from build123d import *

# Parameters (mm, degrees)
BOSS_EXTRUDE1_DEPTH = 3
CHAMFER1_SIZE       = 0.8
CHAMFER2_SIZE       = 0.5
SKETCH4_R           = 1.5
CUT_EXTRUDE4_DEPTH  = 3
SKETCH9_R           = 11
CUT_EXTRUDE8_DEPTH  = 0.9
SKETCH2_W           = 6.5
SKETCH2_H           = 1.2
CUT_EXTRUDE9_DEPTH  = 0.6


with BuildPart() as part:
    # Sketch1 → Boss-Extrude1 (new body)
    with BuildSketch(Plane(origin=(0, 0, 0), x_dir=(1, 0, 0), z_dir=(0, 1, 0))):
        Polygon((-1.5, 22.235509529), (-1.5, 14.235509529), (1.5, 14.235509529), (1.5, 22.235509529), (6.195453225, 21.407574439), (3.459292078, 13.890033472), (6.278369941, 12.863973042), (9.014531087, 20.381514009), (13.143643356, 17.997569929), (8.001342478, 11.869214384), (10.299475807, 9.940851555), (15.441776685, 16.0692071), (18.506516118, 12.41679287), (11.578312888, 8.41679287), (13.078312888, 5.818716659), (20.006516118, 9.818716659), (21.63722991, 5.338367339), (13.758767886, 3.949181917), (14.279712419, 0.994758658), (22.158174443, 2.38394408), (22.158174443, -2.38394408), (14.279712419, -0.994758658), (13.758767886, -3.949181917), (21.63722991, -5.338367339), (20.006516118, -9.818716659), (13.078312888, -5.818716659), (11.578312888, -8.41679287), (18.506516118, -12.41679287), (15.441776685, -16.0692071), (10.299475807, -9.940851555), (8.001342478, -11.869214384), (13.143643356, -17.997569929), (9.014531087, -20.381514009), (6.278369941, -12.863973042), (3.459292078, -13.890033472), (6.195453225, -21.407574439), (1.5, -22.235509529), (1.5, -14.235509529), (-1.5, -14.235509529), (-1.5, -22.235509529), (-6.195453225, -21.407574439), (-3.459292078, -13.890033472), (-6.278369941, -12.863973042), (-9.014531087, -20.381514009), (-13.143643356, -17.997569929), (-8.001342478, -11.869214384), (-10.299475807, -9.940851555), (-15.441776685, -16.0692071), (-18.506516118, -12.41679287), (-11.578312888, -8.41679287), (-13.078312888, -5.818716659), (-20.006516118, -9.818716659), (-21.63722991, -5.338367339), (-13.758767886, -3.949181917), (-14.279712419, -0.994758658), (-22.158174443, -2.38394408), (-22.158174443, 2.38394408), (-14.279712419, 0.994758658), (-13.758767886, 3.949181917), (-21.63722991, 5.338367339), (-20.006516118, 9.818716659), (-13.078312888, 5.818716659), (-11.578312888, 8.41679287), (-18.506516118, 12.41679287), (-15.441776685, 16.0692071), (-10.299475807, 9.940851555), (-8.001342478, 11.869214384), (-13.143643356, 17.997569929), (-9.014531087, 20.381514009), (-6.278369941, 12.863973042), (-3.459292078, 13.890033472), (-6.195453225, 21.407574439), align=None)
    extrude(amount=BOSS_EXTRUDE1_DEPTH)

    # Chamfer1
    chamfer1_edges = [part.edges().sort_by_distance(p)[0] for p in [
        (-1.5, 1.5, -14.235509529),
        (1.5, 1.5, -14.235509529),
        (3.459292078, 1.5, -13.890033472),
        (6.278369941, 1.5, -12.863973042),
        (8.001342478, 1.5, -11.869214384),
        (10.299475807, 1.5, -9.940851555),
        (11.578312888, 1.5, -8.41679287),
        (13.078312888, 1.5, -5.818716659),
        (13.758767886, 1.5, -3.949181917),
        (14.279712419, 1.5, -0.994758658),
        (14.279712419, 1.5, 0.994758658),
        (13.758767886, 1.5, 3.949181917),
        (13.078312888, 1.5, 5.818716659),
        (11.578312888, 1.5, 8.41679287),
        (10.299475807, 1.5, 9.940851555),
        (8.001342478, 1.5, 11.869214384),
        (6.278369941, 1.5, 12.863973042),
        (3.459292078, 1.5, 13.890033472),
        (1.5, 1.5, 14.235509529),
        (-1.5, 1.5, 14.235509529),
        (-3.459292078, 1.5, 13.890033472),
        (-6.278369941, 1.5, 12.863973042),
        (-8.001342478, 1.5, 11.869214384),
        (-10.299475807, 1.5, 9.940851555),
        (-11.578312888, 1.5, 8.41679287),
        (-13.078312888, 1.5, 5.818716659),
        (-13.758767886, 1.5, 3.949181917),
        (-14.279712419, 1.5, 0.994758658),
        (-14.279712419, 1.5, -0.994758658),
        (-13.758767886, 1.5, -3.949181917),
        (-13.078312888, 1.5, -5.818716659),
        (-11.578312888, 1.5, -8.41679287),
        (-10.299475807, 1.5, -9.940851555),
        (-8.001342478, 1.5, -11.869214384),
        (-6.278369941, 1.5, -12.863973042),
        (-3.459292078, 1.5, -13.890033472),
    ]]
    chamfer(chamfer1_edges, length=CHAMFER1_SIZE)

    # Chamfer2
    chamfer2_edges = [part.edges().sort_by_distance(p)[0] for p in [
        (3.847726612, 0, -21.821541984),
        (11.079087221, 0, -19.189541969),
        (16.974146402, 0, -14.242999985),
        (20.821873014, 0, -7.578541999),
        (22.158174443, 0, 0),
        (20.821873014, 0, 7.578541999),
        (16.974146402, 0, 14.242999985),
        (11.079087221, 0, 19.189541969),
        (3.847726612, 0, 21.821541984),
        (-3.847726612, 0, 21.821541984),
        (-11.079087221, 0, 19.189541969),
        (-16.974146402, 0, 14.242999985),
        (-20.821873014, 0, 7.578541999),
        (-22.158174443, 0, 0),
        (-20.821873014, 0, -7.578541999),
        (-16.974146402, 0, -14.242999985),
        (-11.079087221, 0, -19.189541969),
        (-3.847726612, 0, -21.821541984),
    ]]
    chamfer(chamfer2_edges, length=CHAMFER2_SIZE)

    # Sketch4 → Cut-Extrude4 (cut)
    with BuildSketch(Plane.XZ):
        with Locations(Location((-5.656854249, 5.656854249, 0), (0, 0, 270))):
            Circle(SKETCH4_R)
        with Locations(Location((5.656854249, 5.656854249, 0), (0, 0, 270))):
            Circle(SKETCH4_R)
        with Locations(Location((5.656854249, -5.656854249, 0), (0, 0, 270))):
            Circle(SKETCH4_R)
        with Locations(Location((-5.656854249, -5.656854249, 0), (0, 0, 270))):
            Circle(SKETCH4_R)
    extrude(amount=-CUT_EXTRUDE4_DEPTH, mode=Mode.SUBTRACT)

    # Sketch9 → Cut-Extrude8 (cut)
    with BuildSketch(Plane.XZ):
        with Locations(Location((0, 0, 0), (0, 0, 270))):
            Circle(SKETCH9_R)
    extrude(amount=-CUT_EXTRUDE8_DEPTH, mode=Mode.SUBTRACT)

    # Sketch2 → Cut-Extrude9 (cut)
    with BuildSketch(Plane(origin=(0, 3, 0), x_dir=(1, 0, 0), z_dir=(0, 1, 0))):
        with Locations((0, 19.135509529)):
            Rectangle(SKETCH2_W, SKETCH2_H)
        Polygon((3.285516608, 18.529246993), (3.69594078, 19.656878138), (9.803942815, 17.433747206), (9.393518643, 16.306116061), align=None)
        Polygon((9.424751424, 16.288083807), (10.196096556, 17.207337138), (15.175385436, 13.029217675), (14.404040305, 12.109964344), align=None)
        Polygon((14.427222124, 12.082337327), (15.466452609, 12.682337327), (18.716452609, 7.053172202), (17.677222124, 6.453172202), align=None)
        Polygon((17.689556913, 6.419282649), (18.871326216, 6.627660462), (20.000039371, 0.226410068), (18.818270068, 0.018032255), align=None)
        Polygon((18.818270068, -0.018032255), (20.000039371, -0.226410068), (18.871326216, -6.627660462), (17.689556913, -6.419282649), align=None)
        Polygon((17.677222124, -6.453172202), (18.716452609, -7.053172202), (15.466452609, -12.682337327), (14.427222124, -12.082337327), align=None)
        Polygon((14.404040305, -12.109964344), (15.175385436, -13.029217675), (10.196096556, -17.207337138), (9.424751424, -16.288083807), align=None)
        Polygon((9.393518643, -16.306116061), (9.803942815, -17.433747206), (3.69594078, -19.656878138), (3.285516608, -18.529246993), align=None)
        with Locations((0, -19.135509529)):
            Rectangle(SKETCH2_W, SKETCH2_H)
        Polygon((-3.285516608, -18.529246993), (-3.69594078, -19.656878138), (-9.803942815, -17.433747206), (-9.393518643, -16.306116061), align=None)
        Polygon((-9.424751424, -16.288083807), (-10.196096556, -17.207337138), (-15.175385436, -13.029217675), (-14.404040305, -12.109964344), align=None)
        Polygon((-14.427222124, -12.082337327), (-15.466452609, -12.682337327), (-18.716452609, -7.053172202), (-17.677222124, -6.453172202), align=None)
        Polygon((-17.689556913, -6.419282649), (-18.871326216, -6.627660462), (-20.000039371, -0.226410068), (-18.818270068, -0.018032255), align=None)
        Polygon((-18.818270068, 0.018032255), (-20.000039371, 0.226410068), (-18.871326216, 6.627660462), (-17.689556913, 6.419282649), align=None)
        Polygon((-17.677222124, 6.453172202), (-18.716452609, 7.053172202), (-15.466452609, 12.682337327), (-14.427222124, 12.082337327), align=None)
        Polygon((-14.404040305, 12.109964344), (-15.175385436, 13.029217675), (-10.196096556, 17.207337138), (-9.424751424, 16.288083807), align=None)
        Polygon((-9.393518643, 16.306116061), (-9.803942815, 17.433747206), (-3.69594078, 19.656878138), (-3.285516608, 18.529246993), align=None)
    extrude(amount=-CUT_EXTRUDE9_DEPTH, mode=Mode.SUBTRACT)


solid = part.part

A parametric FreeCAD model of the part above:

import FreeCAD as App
import Part
import Sketcher

V = App.Vector
Q = App.Units.Quantity


def edges_at(feature, points):
    """Names of the edges that pass closest to the given points."""
    edges = feature.Shape.Edges
    near = lambda p: min(range(len(edges)), key=lambda i: edges[i].distToShape(Part.Vertex(*p))[0])
    return sorted({f"Edge{near(p) + 1}" for p in points})

doc = App.newDocument("Part")
params = doc.addObject("Spreadsheet::Sheet", "Params")
for row, (alias, value) in enumerate([
    ("sketch1_width", "3 mm"),
    ("sketch1_height", "8 mm"),
    ("sketch1_length", "8 mm"),
    ("sketch1_length2", "3 mm"),
    ("pad1_length", "3 mm"),
    ("chamfer_size", "0.8 mm"),
    ("chamfer2_size", "0.5 mm"),
    ("sketch2_diameter", "3 mm"),
    ("pocket1_length", "3 mm"),
    ("sketch3_diameter", "22 mm"),
    ("pocket2_length", "0.9 mm"),
    ("sketch4_width", "6.5 mm"),
    ("sketch4_height", "1.2 mm"),
    ("sketch4_length", "1.2 mm"),
    ("sketch4_length2", "6.5 mm"),
    ("pocket3_length", "0.6 mm"),
], start=1):
    params.set(f"A{row}", alias)
    params.set(f"B{row}", "=" + value)
    params.setAlias(f"B{row}", alias)

body = doc.addObject("PartDesign::Body", "Body")

# Sketch on XZ plane
sketch1 = doc.addObject("Sketcher::SketchObject", "Sketch")
body.addObject(sketch1)
sketch1.AttachmentSupport = (doc.XZ_Plane, [""])
sketch1.MapMode = "FlatFace"
sketch1.addGeometry([
    Part.LineSegment(V(-1.5, -14.2, 0), V(-1.5, -22.2, 0)),  # 0
    Part.LineSegment(V(-1.5, -22.2, 0), V(-6.2, -21.4, 0)),  # 1
    Part.LineSegment(V(-6.2, -21.4, 0), V(-3.5, -13.9, 0)),  # 2
    Part.LineSegment(V(-3.5, -13.9, 0), V(-6.3, -12.9, 0)),  # 3
    Part.LineSegment(V(-6.3, -12.9, 0), V(-9, -20.4, 0)),  # 4
    Part.LineSegment(V(-9, -20.4, 0), V(-13.1, -18, 0)),  # 5
    Part.LineSegment(V(-13.1, -18, 0), V(-8, -11.9, 0)),  # 6
    Part.LineSegment(V(-8, -11.9, 0), V(-10.3, -9.9, 0)),  # 7
    Part.LineSegment(V(-10.3, -9.9, 0), V(-15.4, -16.1, 0)),  # 8
    Part.LineSegment(V(-15.4, -16.1, 0), V(-18.5, -12.4, 0)),  # 9
    Part.LineSegment(V(-18.5, -12.4, 0), V(-11.6, -8.4, 0)),  # 10
    Part.LineSegment(V(-11.6, -8.4, 0), V(-13.1, -5.8, 0)),  # 11
    Part.LineSegment(V(-13.1, -5.8, 0), V(-20, -9.8, 0)),  # 12
    Part.LineSegment(V(-20, -9.8, 0), V(-21.6, -5.3, 0)),  # 13
    Part.LineSegment(V(-21.6, -5.3, 0), V(-13.8, -3.9, 0)),  # 14
    Part.LineSegment(V(-13.8, -3.9, 0), V(-14.3, -1, 0)),  # 15
    Part.LineSegment(V(-14.3, -1, 0), V(-22.2, -2.4, 0)),  # 16
    Part.LineSegment(V(-22.2, -2.4, 0), V(-22.2, 2.4, 0)),  # 17
    Part.LineSegment(V(-22.2, 2.4, 0), V(-14.3, 1, 0)),  # 18
    Part.LineSegment(V(-14.3, 1, 0), V(-13.8, 3.9, 0)),  # 19
    Part.LineSegment(V(-13.8, 3.9, 0), V(-21.6, 5.3, 0)),  # 20
    Part.LineSegment(V(-21.6, 5.3, 0), V(-20, 9.8, 0)),  # 21
    Part.LineSegment(V(-20, 9.8, 0), V(-13.1, 5.8, 0)),  # 22
    Part.LineSegment(V(-13.1, 5.8, 0), V(-11.6, 8.4, 0)),  # 23
    Part.LineSegment(V(-11.6, 8.4, 0), V(-18.5, 12.4, 0)),  # 24
    Part.LineSegment(V(-18.5, 12.4, 0), V(-15.4, 16.1, 0)),  # 25
    Part.LineSegment(V(-15.4, 16.1, 0), V(-10.3, 9.9, 0)),  # 26
    Part.LineSegment(V(-10.3, 9.9, 0), V(-8, 11.9, 0)),  # 27
    Part.LineSegment(V(-8, 11.9, 0), V(-13.1, 18, 0)),  # 28
    Part.LineSegment(V(-13.1, 18, 0), V(-9, 20.4, 0)),  # 29
    Part.LineSegment(V(-9, 20.4, 0), V(-6.3, 12.9, 0)),  # 30
    Part.LineSegment(V(-6.3, 12.9, 0), V(-3.5, 13.9, 0)),  # 31
    Part.LineSegment(V(-3.5, 13.9, 0), V(-6.2, 21.4, 0)),  # 32
    Part.LineSegment(V(-6.2, 21.4, 0), V(-1.5, 22.2, 0)),  # 33
    Part.LineSegment(V(-1.5, 22.2, 0), V(-1.5, 14.2, 0)),  # 34
    Part.LineSegment(V(-1.5, 14.2, 0), V(1.5, 14.2, 0)),  # 35
    Part.LineSegment(V(1.5, 14.2, 0), V(1.5, 22.2, 0)),  # 36
    Part.LineSegment(V(1.5, 22.2, 0), V(6.2, 21.4, 0)),  # 37
    Part.LineSegment(V(6.2, 21.4, 0), V(3.5, 13.9, 0)),  # 38
    Part.LineSegment(V(3.5, 13.9, 0), V(6.3, 12.9, 0)),  # 39
    Part.LineSegment(V(6.3, 12.9, 0), V(9, 20.4, 0)),  # 40
    Part.LineSegment(V(9, 20.4, 0), V(13.1, 18, 0)),  # 41
    Part.LineSegment(V(13.1, 18, 0), V(8, 11.9, 0)),  # 42
    Part.LineSegment(V(8, 11.9, 0), V(10.3, 9.9, 0)),  # 43
    Part.LineSegment(V(10.3, 9.9, 0), V(15.4, 16.1, 0)),  # 44
    Part.LineSegment(V(15.4, 16.1, 0), V(18.5, 12.4, 0)),  # 45
    Part.LineSegment(V(18.5, 12.4, 0), V(11.6, 8.4, 0)),  # 46
    Part.LineSegment(V(11.6, 8.4, 0), V(13.1, 5.8, 0)),  # 47
    Part.LineSegment(V(13.1, 5.8, 0), V(20, 9.8, 0)),  # 48
    Part.LineSegment(V(20, 9.8, 0), V(21.6, 5.3, 0)),  # 49
    Part.LineSegment(V(21.6, 5.3, 0), V(13.8, 3.9, 0)),  # 50
    Part.LineSegment(V(13.8, 3.9, 0), V(14.3, 1, 0)),  # 51
    Part.LineSegment(V(14.3, 1, 0), V(22.2, 2.4, 0)),  # 52
    Part.LineSegment(V(22.2, 2.4, 0), V(22.2, -2.4, 0)),  # 53
    Part.LineSegment(V(22.2, -2.4, 0), V(14.3, -1, 0)),  # 54
    Part.LineSegment(V(14.3, -1, 0), V(13.8, -3.9, 0)),  # 55
    Part.LineSegment(V(13.8, -3.9, 0), V(21.6, -5.3, 0)),  # 56
    Part.LineSegment(V(21.6, -5.3, 0), V(20, -9.8, 0)),  # 57
    Part.LineSegment(V(20, -9.8, 0), V(13.1, -5.8, 0)),  # 58
    Part.LineSegment(V(13.1, -5.8, 0), V(11.6, -8.4, 0)),  # 59
    Part.LineSegment(V(11.6, -8.4, 0), V(18.5, -12.4, 0)),  # 60
    Part.LineSegment(V(18.5, -12.4, 0), V(15.4, -16.1, 0)),  # 61
    Part.LineSegment(V(15.4, -16.1, 0), V(10.3, -9.9, 0)),  # 62
    Part.LineSegment(V(10.3, -9.9, 0), V(8, -11.9, 0)),  # 63
    Part.LineSegment(V(8, -11.9, 0), V(13.1, -18, 0)),  # 64
    Part.LineSegment(V(13.1, -18, 0), V(9, -20.4, 0)),  # 65
    Part.LineSegment(V(9, -20.4, 0), V(6.3, -12.9, 0)),  # 66
    Part.LineSegment(V(6.3, -12.9, 0), V(3.5, -13.9, 0)),  # 67
    Part.LineSegment(V(3.5, -13.9, 0), V(6.2, -21.4, 0)),  # 68
    Part.LineSegment(V(6.2, -21.4, 0), V(1.5, -22.2, 0)),  # 69
    Part.LineSegment(V(1.5, -22.2, 0), V(1.5, -14.2, 0)),  # 70
    Part.LineSegment(V(1.5, -14.2, 0), V(-1.5, -14.2, 0)),  # 71
], False)
sketch1.addConstraint([
    Sketcher.Constraint("Coincident", 0, 2, 1, 1),
    Sketcher.Constraint("Coincident", 1, 2, 2, 1),
    Sketcher.Constraint("Coincident", 2, 2, 3, 1),
    Sketcher.Constraint("Coincident", 3, 2, 4, 1),
    Sketcher.Constraint("Coincident", 4, 2, 5, 1),
    Sketcher.Constraint("Coincident", 5, 2, 6, 1),
    Sketcher.Constraint("Coincident", 6, 2, 7, 1),
    Sketcher.Constraint("Coincident", 7, 2, 8, 1),
    Sketcher.Constraint("Coincident", 8, 2, 9, 1),
    Sketcher.Constraint("Coincident", 9, 2, 10, 1),
    Sketcher.Constraint("Coincident", 10, 2, 11, 1),
    Sketcher.Constraint("Coincident", 11, 2, 12, 1),
    Sketcher.Constraint("Coincident", 12, 2, 13, 1),
    Sketcher.Constraint("Coincident", 13, 2, 14, 1),
    Sketcher.Constraint("Coincident", 14, 2, 15, 1),
    Sketcher.Constraint("Coincident", 15, 2, 16, 1),
    Sketcher.Constraint("Coincident", 16, 2, 17, 1),
    Sketcher.Constraint("Coincident", 17, 2, 18, 1),
    Sketcher.Constraint("Coincident", 18, 2, 19, 1),
    Sketcher.Constraint("Coincident", 19, 2, 20, 1),
    Sketcher.Constraint("Coincident", 20, 2, 21, 1),
    Sketcher.Constraint("Coincident", 21, 2, 22, 1),
    Sketcher.Constraint("Coincident", 22, 2, 23, 1),
    Sketcher.Constraint("Coincident", 23, 2, 24, 1),
    Sketcher.Constraint("Coincident", 24, 2, 25, 1),
    Sketcher.Constraint("Coincident", 25, 2, 26, 1),
    Sketcher.Constraint("Coincident", 26, 2, 27, 1),
    Sketcher.Constraint("Coincident", 27, 2, 28, 1),
    Sketcher.Constraint("Coincident", 28, 2, 29, 1),
    Sketcher.Constraint("Coincident", 29, 2, 30, 1),
    Sketcher.Constraint("Coincident", 30, 2, 31, 1),
    Sketcher.Constraint("Coincident", 31, 2, 32, 1),
    Sketcher.Constraint("Coincident", 32, 2, 33, 1),
    Sketcher.Constraint("Coincident", 33, 2, 34, 1),
    Sketcher.Constraint("Coincident", 34, 2, 35, 1),
    Sketcher.Constraint("Coincident", 35, 2, 36, 1),
    Sketcher.Constraint("Coincident", 36, 2, 37, 1),
    Sketcher.Constraint("Coincident", 37, 2, 38, 1),
    Sketcher.Constraint("Coincident", 38, 2, 39, 1),
    Sketcher.Constraint("Coincident", 39, 2, 40, 1),
    Sketcher.Constraint("Coincident", 40, 2, 41, 1),
    Sketcher.Constraint("Coincident", 41, 2, 42, 1),
    Sketcher.Constraint("Coincident", 42, 2, 43, 1),
    Sketcher.Constraint("Coincident", 43, 2, 44, 1),
    Sketcher.Constraint("Coincident", 44, 2, 45, 1),
    Sketcher.Constraint("Coincident", 45, 2, 46, 1),
    Sketcher.Constraint("Coincident", 46, 2, 47, 1),
    Sketcher.Constraint("Coincident", 47, 2, 48, 1),
    Sketcher.Constraint("Coincident", 48, 2, 49, 1),
    Sketcher.Constraint("Coincident", 49, 2, 50, 1),
    Sketcher.Constraint("Coincident", 50, 2, 51, 1),
    Sketcher.Constraint("Coincident", 51, 2, 52, 1),
    Sketcher.Constraint("Coincident", 52, 2, 53, 1),
    Sketcher.Constraint("Coincident", 53, 2, 54, 1),
    Sketcher.Constraint("Coincident", 54, 2, 55, 1),
    Sketcher.Constraint("Coincident", 55, 2, 56, 1),
    Sketcher.Constraint("Coincident", 56, 2, 57, 1),
    Sketcher.Constraint("Coincident", 57, 2, 58, 1),
    Sketcher.Constraint("Coincident", 58, 2, 59, 1),
    Sketcher.Constraint("Coincident", 59, 2, 60, 1),
    Sketcher.Constraint("Coincident", 60, 2, 61, 1),
    Sketcher.Constraint("Coincident", 61, 2, 62, 1),
    Sketcher.Constraint("Coincident", 62, 2, 63, 1),
    Sketcher.Constraint("Coincident", 63, 2, 64, 1),
    Sketcher.Constraint("Coincident", 64, 2, 65, 1),
    Sketcher.Constraint("Coincident", 65, 2, 66, 1),
    Sketcher.Constraint("Coincident", 66, 2, 67, 1),
    Sketcher.Constraint("Coincident", 67, 2, 68, 1),
    Sketcher.Constraint("Coincident", 68, 2, 69, 1),
    Sketcher.Constraint("Coincident", 69, 2, 70, 1),
    Sketcher.Constraint("Coincident", 70, 2, 71, 1),
    Sketcher.Constraint("Coincident", 71, 2, 0, 1),
    Sketcher.Constraint("Vertical", 0),
    Sketcher.Constraint("Vertical", 17),
    Sketcher.Constraint("Vertical", 34),
    Sketcher.Constraint("Horizontal", 35),
    Sketcher.Constraint("Vertical", 36),
    Sketcher.Constraint("Vertical", 53),
    Sketcher.Constraint("Vertical", 70),
    Sketcher.Constraint("Horizontal", 71),
    Sketcher.Constraint("Symmetric", 0, 2, 36, 2, -1, 1),
    Sketcher.Constraint("Symmetric", 1, 2, 37, 2, -1, 1),
    Sketcher.Constraint("Symmetric", 2, 2, 38, 2, -1, 1),
    Sketcher.Constraint("Symmetric", 3, 2, 39, 2, -1, 1),
    Sketcher.Constraint("Symmetric", 4, 2, 40, 2, -1, 1),
    Sketcher.Constraint("Symmetric", 5, 2, 41, 2, -1, 1),
    Sketcher.Constraint("Symmetric", 6, 2, 42, 2, -1, 1),
    Sketcher.Constraint("Symmetric", 7, 2, 43, 2, -1, 1),
    Sketcher.Constraint("Symmetric", 8, 2, 44, 2, -1, 1),
    Sketcher.Constraint("Symmetric", 9, 2, 45, 2, -1, 1),
    Sketcher.Constraint("Symmetric", 10, 2, 46, 2, -1, 1),
    Sketcher.Constraint("Symmetric", 11, 2, 47, 2, -1, 1),
    Sketcher.Constraint("Symmetric", 12, 2, 48, 2, -1, 1),
    Sketcher.Constraint("Symmetric", 13, 2, 49, 2, -1, 1),
    Sketcher.Constraint("Symmetric", 14, 2, 50, 2, -1, 1),
    Sketcher.Constraint("Symmetric", 15, 2, 51, 2, -1, 1),
    Sketcher.Constraint("Symmetric", 16, 2, 52, 2, -1, 1),
    Sketcher.Constraint("Symmetric", 18, 2, 54, 2, -1, 1),
    Sketcher.Constraint("Symmetric", 19, 2, 55, 2, -1, 1),
    Sketcher.Constraint("Symmetric", 20, 2, 56, 2, -1, 1),
    Sketcher.Constraint("Symmetric", 21, 2, 57, 2, -1, 1),
    Sketcher.Constraint("Symmetric", 22, 2, 58, 2, -1, 1),
    Sketcher.Constraint("Symmetric", 23, 2, 59, 2, -1, 1),
    Sketcher.Constraint("Symmetric", 24, 2, 60, 2, -1, 1),
    Sketcher.Constraint("Symmetric", 25, 2, 61, 2, -1, 1),
    Sketcher.Constraint("Symmetric", 26, 2, 62, 2, -1, 1),
    Sketcher.Constraint("Symmetric", 27, 2, 63, 2, -1, 1),
    Sketcher.Constraint("Symmetric", 28, 2, 64, 2, -1, 1),
    Sketcher.Constraint("Symmetric", 29, 2, 65, 2, -1, 1),
    Sketcher.Constraint("Symmetric", 30, 2, 66, 2, -1, 1),
    Sketcher.Constraint("Symmetric", 31, 2, 67, 2, -1, 1),
    Sketcher.Constraint("Symmetric", 32, 2, 68, 2, -1, 1),
    Sketcher.Constraint("Symmetric", 33, 2, 69, 2, -1, 1),
    Sketcher.Constraint("Symmetric", 33, 2, 36, 2, -2),
    Sketcher.Constraint("Symmetric", 32, 2, 37, 2, -2),
    Sketcher.Constraint("Symmetric", 31, 2, 38, 2, -2),
    Sketcher.Constraint("Symmetric", 30, 2, 39, 2, -2),
    Sketcher.Constraint("Symmetric", 29, 2, 40, 2, -2),
    Sketcher.Constraint("Symmetric", 28, 2, 41, 2, -2),
    Sketcher.Constraint("Symmetric", 27, 2, 42, 2, -2),
    Sketcher.Constraint("Symmetric", 26, 2, 43, 2, -2),
    Sketcher.Constraint("Symmetric", 25, 2, 44, 2, -2),
    Sketcher.Constraint("Symmetric", 24, 2, 45, 2, -2),
    Sketcher.Constraint("Symmetric", 23, 2, 46, 2, -2),
    Sketcher.Constraint("Symmetric", 22, 2, 47, 2, -2),
    Sketcher.Constraint("Symmetric", 21, 2, 48, 2, -2),
    Sketcher.Constraint("Symmetric", 20, 2, 49, 2, -2),
    Sketcher.Constraint("Symmetric", 19, 2, 50, 2, -2),
    Sketcher.Constraint("Symmetric", 18, 2, 51, 2, -2),
    Sketcher.Constraint("Perpendicular", 2, 3),
    Sketcher.Constraint("Perpendicular", 3, 4),
    Sketcher.Constraint("Perpendicular", 6, 7),
    Sketcher.Constraint("Perpendicular", 7, 8),
    Sketcher.Constraint("Perpendicular", 10, 11),
    Sketcher.Constraint("Perpendicular", 11, 12),
    Sketcher.Constraint("Perpendicular", 14, 15),
    Sketcher.Constraint("Perpendicular", 15, 16),
    Sketcher.Constraint("Parallel", 1, 18),
    Sketcher.Constraint("Perpendicular", 18, 19),
    Sketcher.Constraint("Parallel", 4, 21),
    Sketcher.Constraint("Parallel", 5, 22),
    Sketcher.Constraint("Parallel", 8, 25),
    Sketcher.Constraint("Parallel", 37, 54),
    Sketcher.Constraint("Equal", 0, 34),
    Sketcher.Constraint("Equal", 2, 4),
    Sketcher.Constraint("Equal", 1, 5),
    Sketcher.Constraint("Equal", 4, 6),
    Sketcher.Constraint("Equal", 3, 7),
    Sketcher.Constraint("Equal", 6, 8),
    Sketcher.Constraint("Equal", 5, 9),
    Sketcher.Constraint("Equal", 8, 10),
    Sketcher.Constraint("Equal", 7, 11),
    Sketcher.Constraint("Equal", 10, 12),
    Sketcher.Constraint("Equal", 9, 13),
    Sketcher.Constraint("Equal", 12, 14),
    Sketcher.Constraint("Equal", 11, 15),
    Sketcher.Constraint("Equal", 14, 16),
    Sketcher.Constraint("DistanceX", 35, 1, 35, 2, 3.0),
    Sketcher.Constraint("DistanceY", 0, 2, 0, 1, 8.0),
    Sketcher.Constraint("Angle", 1, Q("170 deg")),
    Sketcher.Constraint("Angle", 2, Q("70 deg")),
    Sketcher.Constraint("Angle", 5, Q("150 deg")),
    Sketcher.Constraint("Angle", 6, Q("50 deg")),
    Sketcher.Constraint("Distance", 2, 8.0),
    Sketcher.Constraint("Distance", 3, 3.0),
    Sketcher.Constraint("DistanceY", 17, 1, 17, 2, 4.767888),
    Sketcher.Constraint("Distance", 1, 4.767888),
])
sketch1.setExpression("Constraints[157]", "Params.sketch1_width")
sketch1.setExpression("Constraints[158]", "Params.sketch1_height")
sketch1.setExpression("Constraints[163]", "Params.sketch1_length")
sketch1.setExpression("Constraints[164]", "Params.sketch1_length2")
pad1 = doc.addObject("PartDesign::Pad", "Pad")
body.addObject(pad1)
pad1.Profile = sketch1
pad1.setExpression("Length", "Params.pad1_length")
pad1.Reversed = True
doc.recompute()

chamfer = doc.addObject("PartDesign::Chamfer", "Chamfer")
body.addObject(chamfer)
chamfer.Base = (pad1, edges_at(pad1, [
    (-1.5, 1.5, -14.236),
    (1.5, 1.5, -14.236),
    (3.459, 1.5, -13.89),
    (6.278, 1.5, -12.864),
    (8.001, 1.5, -11.869),
    (10.299, 1.5, -9.941),
    (11.578, 1.5, -8.417),
    (13.078, 1.5, -5.819),
    (13.759, 1.5, -3.949),
    (14.28, 1.5, -0.995),
    (14.28, 1.5, 0.995),
    (13.759, 1.5, 3.949),
    (13.078, 1.5, 5.819),
    (11.578, 1.5, 8.417),
    (10.299, 1.5, 9.941),
    (8.001, 1.5, 11.869),
    (6.278, 1.5, 12.864),
    (3.459, 1.5, 13.89),
    (1.5, 1.5, 14.236),
    (-1.5, 1.5, 14.236),
    (-3.459, 1.5, 13.89),
    (-6.278, 1.5, 12.864),
    (-8.001, 1.5, 11.869),
    (-10.299, 1.5, 9.941),
    (-11.578, 1.5, 8.417),
    (-13.078, 1.5, 5.819),
    (-13.759, 1.5, 3.949),
    (-14.28, 1.5, 0.995),
    (-14.28, 1.5, -0.995),
    (-13.759, 1.5, -3.949),
    (-13.078, 1.5, -5.819),
    (-11.578, 1.5, -8.417),
    (-10.299, 1.5, -9.941),
    (-8.001, 1.5, -11.869),
    (-6.278, 1.5, -12.864),
    (-3.459, 1.5, -13.89),
]))
chamfer.setExpression("Size", "Params.chamfer_size")
doc.recompute()

chamfer2 = doc.addObject("PartDesign::Chamfer", "Chamfer001")
body.addObject(chamfer2)
chamfer2.Base = (chamfer, edges_at(chamfer, [
    (3.848, 0, -21.822),
    (11.079, 0, -19.19),
    (16.974, 0, -14.243),
    (20.822, 0, -7.579),
    (22.158, 0, 0),
    (20.822, 0, 7.579),
    (16.974, 0, 14.243),
    (11.079, 0, 19.19),
    (3.848, 0, 21.822),
    (-3.848, 0, 21.822),
    (-11.079, 0, 19.19),
    (-16.974, 0, 14.243),
    (-20.822, 0, 7.579),
    (-22.158, 0, 0),
    (-20.822, 0, -7.579),
    (-16.974, 0, -14.243),
    (-11.079, 0, -19.19),
    (-3.848, 0, -21.822),
]))
chamfer2.setExpression("Size", "Params.chamfer2_size")

# Sketch on XZ plane
sketch2 = doc.addObject("Sketcher::SketchObject", "Sketch001")
body.addObject(sketch2)
sketch2.AttachmentSupport = (doc.XZ_Plane, [""])
sketch2.MapMode = "FlatFace"
sketch2.addGeometry([
    Part.Circle(V(-5.7, 5.7, 0), V(0, 0, 1), 1.5),
    Part.Circle(V(5.7, 5.7, 0), V(0, 0, 1), 1.5),
    Part.Circle(V(5.7, -5.7, 0), V(0, 0, 1), 1.5),
    Part.Circle(V(-5.7, -5.7, 0), V(0, 0, 1), 1.5),
], False)
sketch2.addConstraint([
    Sketcher.Constraint("Equal", 0, 1),
    Sketcher.Constraint("Equal", 1, 2),
    Sketcher.Constraint("Equal", 2, 3),
    Sketcher.Constraint("Symmetric", 0, 3, 2, 3, -1, 1),
    Sketcher.Constraint("Symmetric", 1, 3, 3, 3, -1, 1),
    Sketcher.Constraint("Symmetric", 0, 3, 1, 3, -2),
    Sketcher.Constraint("Diameter", 0, 3.0),
    Sketcher.Constraint("DistanceX", 0, 3, 1, 3, 11.313708),
    Sketcher.Constraint("DistanceY", 2, 3, 1, 3, 11.313708),
])
sketch2.setExpression("Constraints[6]", "Params.sketch2_diameter")
pocket1 = doc.addObject("PartDesign::Pocket", "Pocket")
body.addObject(pocket1)
pocket1.Profile = sketch2
pocket1.setExpression("Length", "Params.pocket1_length")

# Sketch on XZ plane
sketch3 = doc.addObject("Sketcher::SketchObject", "Sketch002")
body.addObject(sketch3)
sketch3.AttachmentSupport = (doc.XZ_Plane, [""])
sketch3.MapMode = "FlatFace"
sketch3.addGeometry(Part.Circle(V(0, 0, 0), V(0, 0, 1), 11), False)
sketch3.addConstraint([
    Sketcher.Constraint("Coincident", 0, 3, -1, 1),
    Sketcher.Constraint("Diameter", 0, 22.0),
])
sketch3.setExpression("Constraints[1]", "Params.sketch3_diameter")
pocket2 = doc.addObject("PartDesign::Pocket", "Pocket001")
body.addObject(pocket2)
pocket2.Profile = sketch3
pocket2.setExpression("Length", "Params.pocket2_length")

# Sketch on XZ plane
sketch4 = doc.addObject("Sketcher::SketchObject", "Sketch003")
body.addObject(sketch4)
sketch4.AttachmentSupport = (doc.XZ_Plane, [""])
sketch4.MapMode = "FlatFace"
sketch4.AttachmentOffset = App.Placement(V(0, 0, -3), App.Rotation())
sketch4.addGeometry([
    Part.LineSegment(V(-3.2, -19.7, 0), V(-3.2, -18.5, 0)),  # 0
    Part.LineSegment(V(-3.2, -18.5, 0), V(3.2, -18.5, 0)),  # 1
    Part.LineSegment(V(3.2, -18.5, 0), V(3.2, -19.7, 0)),  # 2
    Part.LineSegment(V(3.2, -19.7, 0), V(-3.2, -19.7, 0)),  # 3
    Part.LineSegment(V(3.7, -19.7, 0), V(3.3, -18.5, 0)),  # 4
    Part.LineSegment(V(3.3, -18.5, 0), V(9.4, -16.3, 0)),  # 5
    Part.LineSegment(V(9.4, -16.3, 0), V(9.8, -17.4, 0)),  # 6
    Part.LineSegment(V(9.8, -17.4, 0), V(3.7, -19.7, 0)),  # 7
    Part.LineSegment(V(10.2, -17.2, 0), V(9.4, -16.3, 0)),  # 8
    Part.LineSegment(V(9.4, -16.3, 0), V(14.4, -12.1, 0)),  # 9
    Part.LineSegment(V(14.4, -12.1, 0), V(15.2, -13, 0)),  # 10
    Part.LineSegment(V(15.2, -13, 0), V(10.2, -17.2, 0)),  # 11
    Part.LineSegment(V(15.5, -12.7, 0), V(14.4, -12.1, 0)),  # 12
    Part.LineSegment(V(14.4, -12.1, 0), V(17.7, -6.5, 0)),  # 13
    Part.LineSegment(V(17.7, -6.5, 0), V(18.7, -7.1, 0)),  # 14
    Part.LineSegment(V(18.7, -7.1, 0), V(15.5, -12.7, 0)),  # 15
    Part.LineSegment(V(18.9, -6.6, 0), V(17.7, -6.4, 0)),  # 16
    Part.LineSegment(V(17.7, -6.4, 0), V(18.8, 0, 0)),  # 17
    Part.LineSegment(V(18.8, 0, 0), V(20, -0.2, 0)),  # 18
    Part.LineSegment(V(20, -0.2, 0), V(18.9, -6.6, 0)),  # 19
    Part.LineSegment(V(20, 0.2, 0), V(18.8, 0, 0)),  # 20
    Part.LineSegment(V(18.8, 0, 0), V(17.7, 6.4, 0)),  # 21
    Part.LineSegment(V(17.7, 6.4, 0), V(18.9, 6.6, 0)),  # 22
    Part.LineSegment(V(18.9, 6.6, 0), V(20, 0.2, 0)),  # 23
    Part.LineSegment(V(18.7, 7.1, 0), V(17.7, 6.5, 0)),  # 24
    Part.LineSegment(V(17.7, 6.5, 0), V(14.4, 12.1, 0)),  # 25
    Part.LineSegment(V(14.4, 12.1, 0), V(15.5, 12.7, 0)),  # 26
    Part.LineSegment(V(15.5, 12.7, 0), V(18.7, 7.1, 0)),  # 27
    Part.LineSegment(V(15.2, 13, 0), V(14.4, 12.1, 0)),  # 28
    Part.LineSegment(V(14.4, 12.1, 0), V(9.4, 16.3, 0)),  # 29
    Part.LineSegment(V(9.4, 16.3, 0), V(10.2, 17.2, 0)),  # 30
    Part.LineSegment(V(10.2, 17.2, 0), V(15.2, 13, 0)),  # 31
    Part.LineSegment(V(9.8, 17.4, 0), V(9.4, 16.3, 0)),  # 32
    Part.LineSegment(V(9.4, 16.3, 0), V(3.3, 18.5, 0)),  # 33
    Part.LineSegment(V(3.3, 18.5, 0), V(3.7, 19.7, 0)),  # 34
    Part.LineSegment(V(3.7, 19.7, 0), V(9.8, 17.4, 0)),  # 35
    Part.LineSegment(V(-3.2, 18.5, 0), V(-3.2, 19.7, 0)),  # 36
    Part.LineSegment(V(-3.2, 19.7, 0), V(3.2, 19.7, 0)),  # 37
    Part.LineSegment(V(3.2, 19.7, 0), V(3.2, 18.5, 0)),  # 38
    Part.LineSegment(V(3.2, 18.5, 0), V(-3.2, 18.5, 0)),  # 39
    Part.LineSegment(V(-3.7, 19.7, 0), V(-3.3, 18.5, 0)),  # 40
    Part.LineSegment(V(-3.3, 18.5, 0), V(-9.4, 16.3, 0)),  # 41
    Part.LineSegment(V(-9.4, 16.3, 0), V(-9.8, 17.4, 0)),  # 42
    Part.LineSegment(V(-9.8, 17.4, 0), V(-3.7, 19.7, 0)),  # 43
    Part.LineSegment(V(-10.2, 17.2, 0), V(-9.4, 16.3, 0)),  # 44
    Part.LineSegment(V(-9.4, 16.3, 0), V(-14.4, 12.1, 0)),  # 45
    Part.LineSegment(V(-14.4, 12.1, 0), V(-15.2, 13, 0)),  # 46
    Part.LineSegment(V(-15.2, 13, 0), V(-10.2, 17.2, 0)),  # 47
    Part.LineSegment(V(-15.5, 12.7, 0), V(-14.4, 12.1, 0)),  # 48
    Part.LineSegment(V(-14.4, 12.1, 0), V(-17.7, 6.5, 0)),  # 49
    Part.LineSegment(V(-17.7, 6.5, 0), V(-18.7, 7.1, 0)),  # 50
    Part.LineSegment(V(-18.7, 7.1, 0), V(-15.5, 12.7, 0)),  # 51
    Part.LineSegment(V(-18.9, 6.6, 0), V(-17.7, 6.4, 0)),  # 52
    Part.LineSegment(V(-17.7, 6.4, 0), V(-18.8, 0, 0)),  # 53
    Part.LineSegment(V(-18.8, 0, 0), V(-20, 0.2, 0)),  # 54
    Part.LineSegment(V(-20, 0.2, 0), V(-18.9, 6.6, 0)),  # 55
    Part.LineSegment(V(-20, -0.2, 0), V(-18.8, 0, 0)),  # 56
    Part.LineSegment(V(-18.8, 0, 0), V(-17.7, -6.4, 0)),  # 57
    Part.LineSegment(V(-17.7, -6.4, 0), V(-18.9, -6.6, 0)),  # 58
    Part.LineSegment(V(-18.9, -6.6, 0), V(-20, -0.2, 0)),  # 59
    Part.LineSegment(V(-18.7, -7.1, 0), V(-17.7, -6.5, 0)),  # 60
    Part.LineSegment(V(-17.7, -6.5, 0), V(-14.4, -12.1, 0)),  # 61
    Part.LineSegment(V(-14.4, -12.1, 0), V(-15.5, -12.7, 0)),  # 62
    Part.LineSegment(V(-15.5, -12.7, 0), V(-18.7, -7.1, 0)),  # 63
    Part.LineSegment(V(-15.2, -13, 0), V(-14.4, -12.1, 0)),  # 64
    Part.LineSegment(V(-14.4, -12.1, 0), V(-9.4, -16.3, 0)),  # 65
    Part.LineSegment(V(-9.4, -16.3, 0), V(-10.2, -17.2, 0)),  # 66
    Part.LineSegment(V(-10.2, -17.2, 0), V(-15.2, -13, 0)),  # 67
    Part.LineSegment(V(-9.8, -17.4, 0), V(-9.4, -16.3, 0)),  # 68
    Part.LineSegment(V(-9.4, -16.3, 0), V(-3.3, -18.5, 0)),  # 69
    Part.LineSegment(V(-3.3, -18.5, 0), V(-3.7, -19.7, 0)),  # 70
    Part.LineSegment(V(-3.7, -19.7, 0), V(-9.8, -17.4, 0)),  # 71
], False)
sketch4.addConstraint([
    Sketcher.Constraint("Coincident", 0, 2, 1, 1),
    Sketcher.Constraint("Coincident", 1, 2, 2, 1),
    Sketcher.Constraint("Coincident", 2, 2, 3, 1),
    Sketcher.Constraint("Coincident", 3, 2, 0, 1),
    Sketcher.Constraint("Coincident", 4, 2, 5, 1),
    Sketcher.Constraint("Coincident", 5, 2, 6, 1),
    Sketcher.Constraint("Coincident", 6, 2, 7, 1),
    Sketcher.Constraint("Coincident", 7, 2, 4, 1),
    Sketcher.Constraint("Coincident", 8, 2, 9, 1),
    Sketcher.Constraint("Coincident", 9, 2, 10, 1),
    Sketcher.Constraint("Coincident", 10, 2, 11, 1),
    Sketcher.Constraint("Coincident", 11, 2, 8, 1),
    Sketcher.Constraint("Coincident", 12, 2, 13, 1),
    Sketcher.Constraint("Coincident", 13, 2, 14, 1),
    Sketcher.Constraint("Coincident", 14, 2, 15, 1),
    Sketcher.Constraint("Coincident", 15, 2, 12, 1),
    Sketcher.Constraint("Coincident", 16, 2, 17, 1),
    Sketcher.Constraint("Coincident", 17, 2, 18, 1),
    Sketcher.Constraint("Coincident", 18, 2, 19, 1),
    Sketcher.Constraint("Coincident", 19, 2, 16, 1),
    Sketcher.Constraint("Coincident", 20, 2, 21, 1),
    Sketcher.Constraint("Coincident", 21, 2, 22, 1),
    Sketcher.Constraint("Coincident", 22, 2, 23, 1),
    Sketcher.Constraint("Coincident", 23, 2, 20, 1),
    Sketcher.Constraint("Coincident", 24, 2, 25, 1),
    Sketcher.Constraint("Coincident", 25, 2, 26, 1),
    Sketcher.Constraint("Coincident", 26, 2, 27, 1),
    Sketcher.Constraint("Coincident", 27, 2, 24, 1),
    Sketcher.Constraint("Coincident", 28, 2, 29, 1),
    Sketcher.Constraint("Coincident", 29, 2, 30, 1),
    Sketcher.Constraint("Coincident", 30, 2, 31, 1),
    Sketcher.Constraint("Coincident", 31, 2, 28, 1),
    Sketcher.Constraint("Coincident", 32, 2, 33, 1),
    Sketcher.Constraint("Coincident", 33, 2, 34, 1),
    Sketcher.Constraint("Coincident", 34, 2, 35, 1),
    Sketcher.Constraint("Coincident", 35, 2, 32, 1),
    Sketcher.Constraint("Coincident", 36, 2, 37, 1),
    Sketcher.Constraint("Coincident", 37, 2, 38, 1),
    Sketcher.Constraint("Coincident", 38, 2, 39, 1),
    Sketcher.Constraint("Coincident", 39, 2, 36, 1),
    Sketcher.Constraint("Coincident", 40, 2, 41, 1),
    Sketcher.Constraint("Coincident", 41, 2, 42, 1),
    Sketcher.Constraint("Coincident", 42, 2, 43, 1),
    Sketcher.Constraint("Coincident", 43, 2, 40, 1),
    Sketcher.Constraint("Coincident", 44, 2, 45, 1),
    Sketcher.Constraint("Coincident", 45, 2, 46, 1),
    Sketcher.Constraint("Coincident", 46, 2, 47, 1),
    Sketcher.Constraint("Coincident", 47, 2, 44, 1),
    Sketcher.Constraint("Coincident", 48, 2, 49, 1),
    Sketcher.Constraint("Coincident", 49, 2, 50, 1),
    Sketcher.Constraint("Coincident", 50, 2, 51, 1),
    Sketcher.Constraint("Coincident", 51, 2, 48, 1),
    Sketcher.Constraint("Coincident", 52, 2, 53, 1),
    Sketcher.Constraint("Coincident", 53, 2, 54, 1),
    Sketcher.Constraint("Coincident", 54, 2, 55, 1),
    Sketcher.Constraint("Coincident", 55, 2, 52, 1),
    Sketcher.Constraint("Coincident", 56, 2, 57, 1),
    Sketcher.Constraint("Coincident", 57, 2, 58, 1),
    Sketcher.Constraint("Coincident", 58, 2, 59, 1),
    Sketcher.Constraint("Coincident", 59, 2, 56, 1),
    Sketcher.Constraint("Coincident", 60, 2, 61, 1),
    Sketcher.Constraint("Coincident", 61, 2, 62, 1),
    Sketcher.Constraint("Coincident", 62, 2, 63, 1),
    Sketcher.Constraint("Coincident", 63, 2, 60, 1),
    Sketcher.Constraint("Coincident", 64, 2, 65, 1),
    Sketcher.Constraint("Coincident", 65, 2, 66, 1),
    Sketcher.Constraint("Coincident", 66, 2, 67, 1),
    Sketcher.Constraint("Coincident", 67, 2, 64, 1),
    Sketcher.Constraint("Coincident", 68, 2, 69, 1),
    Sketcher.Constraint("Coincident", 69, 2, 70, 1),
    Sketcher.Constraint("Coincident", 70, 2, 71, 1),
    Sketcher.Constraint("Coincident", 71, 2, 68, 1),
    Sketcher.Constraint("Vertical", 0),
    Sketcher.Constraint("Horizontal", 1),
    Sketcher.Constraint("Vertical", 2),
    Sketcher.Constraint("Horizontal", 3),
    Sketcher.Constraint("Vertical", 36),
    Sketcher.Constraint("Horizontal", 37),
    Sketcher.Constraint("Vertical", 38),
    Sketcher.Constraint("Horizontal", 39),
    Sketcher.Constraint("Symmetric", 2, 2, 36, 2, -1, 1),
    Sketcher.Constraint("Symmetric", 0, 2, 38, 2, -1, 1),
    Sketcher.Constraint("Symmetric", 4, 2, 40, 2, -1, 1),
    Sketcher.Constraint("Symmetric", 5, 2, 41, 2, -1, 1),
    Sketcher.Constraint("Symmetric", 6, 2, 42, 2, -1, 1),
    Sketcher.Constraint("Symmetric", 7, 2, 43, 2, -1, 1),
    Sketcher.Constraint("Symmetric", 8, 2, 44, 2, -1, 1),
    Sketcher.Constraint("Symmetric", 9, 2, 45, 2, -1, 1),
    Sketcher.Constraint("Symmetric", 10, 2, 46, 2, -1, 1),
    Sketcher.Constraint("Symmetric", 11, 2, 47, 2, -1, 1),
    Sketcher.Constraint("Symmetric", 12, 2, 48, 2, -1, 1),
    Sketcher.Constraint("Symmetric", 13, 2, 49, 2, -1, 1),
    Sketcher.Constraint("Symmetric", 14, 2, 50, 2, -1, 1),
    Sketcher.Constraint("Symmetric", 15, 2, 51, 2, -1, 1),
    Sketcher.Constraint("Symmetric", 16, 2, 52, 2, -1, 1),
    Sketcher.Constraint("Symmetric", 17, 2, 53, 2, -1, 1),
    Sketcher.Constraint("Symmetric", 18, 2, 54, 2, -1, 1),
    Sketcher.Constraint("Symmetric", 19, 2, 55, 2, -1, 1),
    Sketcher.Constraint("Symmetric", 20, 2, 56, 2, -1, 1),
    Sketcher.Constraint("Symmetric", 21, 2, 57, 2, -1, 1),
    Sketcher.Constraint("Symmetric", 22, 2, 58, 2, -1, 1),
    Sketcher.Constraint("Symmetric", 23, 2, 59, 2, -1, 1),
    Sketcher.Constraint("Symmetric", 24, 2, 60, 2, -1, 1),
    Sketcher.Constraint("Symmetric", 25, 2, 61, 2, -1, 1),
    Sketcher.Constraint("Symmetric", 26, 2, 62, 2, -1, 1),
    Sketcher.Constraint("Symmetric", 27, 2, 63, 2, -1, 1),
    Sketcher.Constraint("Symmetric", 28, 2, 64, 2, -1, 1),
    Sketcher.Constraint("Symmetric", 29, 2, 65, 2, -1, 1),
    Sketcher.Constraint("Symmetric", 30, 2, 66, 2, -1, 1),
    Sketcher.Constraint("Symmetric", 31, 2, 67, 2, -1, 1),
    Sketcher.Constraint("Symmetric", 32, 2, 68, 2, -1, 1),
    Sketcher.Constraint("Symmetric", 33, 2, 69, 2, -1, 1),
    Sketcher.Constraint("Symmetric", 34, 2, 70, 2, -1, 1),
    Sketcher.Constraint("Symmetric", 35, 2, 71, 2, -1, 1),
    Sketcher.Constraint("Symmetric", 33, 2, 40, 2, -2),
    Sketcher.Constraint("Symmetric", 32, 2, 41, 2, -2),
    Sketcher.Constraint("Symmetric", 35, 2, 42, 2, -2),
    Sketcher.Constraint("Symmetric", 34, 2, 43, 2, -2),
    Sketcher.Constraint("Symmetric", 29, 2, 44, 2, -2),
    Sketcher.Constraint("Symmetric", 28, 2, 45, 2, -2),
    Sketcher.Constraint("Symmetric", 31, 2, 46, 2, -2),
    Sketcher.Constraint("Symmetric", 30, 2, 47, 2, -2),
    Sketcher.Constraint("Symmetric", 25, 2, 48, 2, -2),
    Sketcher.Constraint("Symmetric", 24, 2, 49, 2, -2),
    Sketcher.Constraint("Symmetric", 27, 2, 50, 2, -2),
    Sketcher.Constraint("Symmetric", 26, 2, 51, 2, -2),
    Sketcher.Constraint("Symmetric", 21, 2, 52, 2, -2),
    Sketcher.Constraint("Symmetric", 20, 2, 53, 2, -2),
    Sketcher.Constraint("Symmetric", 23, 2, 54, 2, -2),
    Sketcher.Constraint("Symmetric", 22, 2, 55, 2, -2),
    Sketcher.Constraint("Perpendicular", 4, 5),
    Sketcher.Constraint("Perpendicular", 5, 6),
    Sketcher.Constraint("Perpendicular", 6, 7),
    Sketcher.Constraint("Perpendicular", 8, 9),
    Sketcher.Constraint("Perpendicular", 9, 10),
    Sketcher.Constraint("Perpendicular", 10, 11),
    Sketcher.Constraint("Perpendicular", 12, 13),
    Sketcher.Constraint("Perpendicular", 13, 14),
    Sketcher.Constraint("Perpendicular", 14, 15),
    Sketcher.Constraint("Perpendicular", 16, 17),
    Sketcher.Constraint("Perpendicular", 17, 18),
    Sketcher.Constraint("Perpendicular", 18, 19),
    Sketcher.Constraint("Vertical", 3, 2, 36, 2),
    Sketcher.Constraint("Equal", 6, 8),
    Sketcher.Constraint("Equal", 7, 9),
    Sketcher.Constraint("Equal", 10, 12),
    Sketcher.Constraint("Equal", 11, 13),
    Sketcher.Constraint("Equal", 14, 16),
    Sketcher.Constraint("Equal", 15, 17),
    Sketcher.Constraint("Angle", 4, Q("110 deg")),
    Sketcher.Constraint("Angle", 8, Q("130 deg")),
    Sketcher.Constraint("Angle", 12, Q("150 deg")),
    Sketcher.Constraint("Angle", 16, Q("170 deg")),
    Sketcher.Constraint("DistanceX", 1, 1, 1, 2, 6.5),
    Sketcher.Constraint("DistanceY", 0, 1, 0, 2, 1.2),
    Sketcher.Constraint("Distance", 4, 1.2),
    Sketcher.Constraint("Distance", 5, 6.5),
    Sketcher.Constraint("DistanceY", 0, 2, -1, 1, 18.53551),
    Sketcher.Constraint("DistanceX", -1, 1, 5, 2, 9.393519),
    Sketcher.Constraint("DistanceY", 7, 2, -1, 1, 19.656878),
    Sketcher.Constraint("DistanceX", -1, 1, 8, 2, 9.424751),
    Sketcher.Constraint("DistanceX", -1, 1, 17, 2, 18.81827),
    Sketcher.Constraint("DistanceY", 18, 2, -1, 1, 0.22641),
    Sketcher.Constraint("DistanceY", 8, 2, -1, 1, 16.288084),
    Sketcher.Constraint("DistanceX", -1, 1, 12, 2, 14.427222),
    Sketcher.Constraint("DistanceY", 12, 2, -1, 1, 12.082337),
])
sketch4.setExpression("Constraints[153]", "Params.sketch4_width")
sketch4.setExpression("Constraints[154]", "Params.sketch4_height")
sketch4.setExpression("Constraints[155]", "Params.sketch4_length")
sketch4.setExpression("Constraints[156]", "Params.sketch4_length2")
pocket3 = doc.addObject("PartDesign::Pocket", "Pocket002")
body.addObject(pocket3)
pocket3.Profile = sketch4
pocket3.setExpression("Length", "Params.pocket3_length")
pocket3.Reversed = True

doc.recompute()
